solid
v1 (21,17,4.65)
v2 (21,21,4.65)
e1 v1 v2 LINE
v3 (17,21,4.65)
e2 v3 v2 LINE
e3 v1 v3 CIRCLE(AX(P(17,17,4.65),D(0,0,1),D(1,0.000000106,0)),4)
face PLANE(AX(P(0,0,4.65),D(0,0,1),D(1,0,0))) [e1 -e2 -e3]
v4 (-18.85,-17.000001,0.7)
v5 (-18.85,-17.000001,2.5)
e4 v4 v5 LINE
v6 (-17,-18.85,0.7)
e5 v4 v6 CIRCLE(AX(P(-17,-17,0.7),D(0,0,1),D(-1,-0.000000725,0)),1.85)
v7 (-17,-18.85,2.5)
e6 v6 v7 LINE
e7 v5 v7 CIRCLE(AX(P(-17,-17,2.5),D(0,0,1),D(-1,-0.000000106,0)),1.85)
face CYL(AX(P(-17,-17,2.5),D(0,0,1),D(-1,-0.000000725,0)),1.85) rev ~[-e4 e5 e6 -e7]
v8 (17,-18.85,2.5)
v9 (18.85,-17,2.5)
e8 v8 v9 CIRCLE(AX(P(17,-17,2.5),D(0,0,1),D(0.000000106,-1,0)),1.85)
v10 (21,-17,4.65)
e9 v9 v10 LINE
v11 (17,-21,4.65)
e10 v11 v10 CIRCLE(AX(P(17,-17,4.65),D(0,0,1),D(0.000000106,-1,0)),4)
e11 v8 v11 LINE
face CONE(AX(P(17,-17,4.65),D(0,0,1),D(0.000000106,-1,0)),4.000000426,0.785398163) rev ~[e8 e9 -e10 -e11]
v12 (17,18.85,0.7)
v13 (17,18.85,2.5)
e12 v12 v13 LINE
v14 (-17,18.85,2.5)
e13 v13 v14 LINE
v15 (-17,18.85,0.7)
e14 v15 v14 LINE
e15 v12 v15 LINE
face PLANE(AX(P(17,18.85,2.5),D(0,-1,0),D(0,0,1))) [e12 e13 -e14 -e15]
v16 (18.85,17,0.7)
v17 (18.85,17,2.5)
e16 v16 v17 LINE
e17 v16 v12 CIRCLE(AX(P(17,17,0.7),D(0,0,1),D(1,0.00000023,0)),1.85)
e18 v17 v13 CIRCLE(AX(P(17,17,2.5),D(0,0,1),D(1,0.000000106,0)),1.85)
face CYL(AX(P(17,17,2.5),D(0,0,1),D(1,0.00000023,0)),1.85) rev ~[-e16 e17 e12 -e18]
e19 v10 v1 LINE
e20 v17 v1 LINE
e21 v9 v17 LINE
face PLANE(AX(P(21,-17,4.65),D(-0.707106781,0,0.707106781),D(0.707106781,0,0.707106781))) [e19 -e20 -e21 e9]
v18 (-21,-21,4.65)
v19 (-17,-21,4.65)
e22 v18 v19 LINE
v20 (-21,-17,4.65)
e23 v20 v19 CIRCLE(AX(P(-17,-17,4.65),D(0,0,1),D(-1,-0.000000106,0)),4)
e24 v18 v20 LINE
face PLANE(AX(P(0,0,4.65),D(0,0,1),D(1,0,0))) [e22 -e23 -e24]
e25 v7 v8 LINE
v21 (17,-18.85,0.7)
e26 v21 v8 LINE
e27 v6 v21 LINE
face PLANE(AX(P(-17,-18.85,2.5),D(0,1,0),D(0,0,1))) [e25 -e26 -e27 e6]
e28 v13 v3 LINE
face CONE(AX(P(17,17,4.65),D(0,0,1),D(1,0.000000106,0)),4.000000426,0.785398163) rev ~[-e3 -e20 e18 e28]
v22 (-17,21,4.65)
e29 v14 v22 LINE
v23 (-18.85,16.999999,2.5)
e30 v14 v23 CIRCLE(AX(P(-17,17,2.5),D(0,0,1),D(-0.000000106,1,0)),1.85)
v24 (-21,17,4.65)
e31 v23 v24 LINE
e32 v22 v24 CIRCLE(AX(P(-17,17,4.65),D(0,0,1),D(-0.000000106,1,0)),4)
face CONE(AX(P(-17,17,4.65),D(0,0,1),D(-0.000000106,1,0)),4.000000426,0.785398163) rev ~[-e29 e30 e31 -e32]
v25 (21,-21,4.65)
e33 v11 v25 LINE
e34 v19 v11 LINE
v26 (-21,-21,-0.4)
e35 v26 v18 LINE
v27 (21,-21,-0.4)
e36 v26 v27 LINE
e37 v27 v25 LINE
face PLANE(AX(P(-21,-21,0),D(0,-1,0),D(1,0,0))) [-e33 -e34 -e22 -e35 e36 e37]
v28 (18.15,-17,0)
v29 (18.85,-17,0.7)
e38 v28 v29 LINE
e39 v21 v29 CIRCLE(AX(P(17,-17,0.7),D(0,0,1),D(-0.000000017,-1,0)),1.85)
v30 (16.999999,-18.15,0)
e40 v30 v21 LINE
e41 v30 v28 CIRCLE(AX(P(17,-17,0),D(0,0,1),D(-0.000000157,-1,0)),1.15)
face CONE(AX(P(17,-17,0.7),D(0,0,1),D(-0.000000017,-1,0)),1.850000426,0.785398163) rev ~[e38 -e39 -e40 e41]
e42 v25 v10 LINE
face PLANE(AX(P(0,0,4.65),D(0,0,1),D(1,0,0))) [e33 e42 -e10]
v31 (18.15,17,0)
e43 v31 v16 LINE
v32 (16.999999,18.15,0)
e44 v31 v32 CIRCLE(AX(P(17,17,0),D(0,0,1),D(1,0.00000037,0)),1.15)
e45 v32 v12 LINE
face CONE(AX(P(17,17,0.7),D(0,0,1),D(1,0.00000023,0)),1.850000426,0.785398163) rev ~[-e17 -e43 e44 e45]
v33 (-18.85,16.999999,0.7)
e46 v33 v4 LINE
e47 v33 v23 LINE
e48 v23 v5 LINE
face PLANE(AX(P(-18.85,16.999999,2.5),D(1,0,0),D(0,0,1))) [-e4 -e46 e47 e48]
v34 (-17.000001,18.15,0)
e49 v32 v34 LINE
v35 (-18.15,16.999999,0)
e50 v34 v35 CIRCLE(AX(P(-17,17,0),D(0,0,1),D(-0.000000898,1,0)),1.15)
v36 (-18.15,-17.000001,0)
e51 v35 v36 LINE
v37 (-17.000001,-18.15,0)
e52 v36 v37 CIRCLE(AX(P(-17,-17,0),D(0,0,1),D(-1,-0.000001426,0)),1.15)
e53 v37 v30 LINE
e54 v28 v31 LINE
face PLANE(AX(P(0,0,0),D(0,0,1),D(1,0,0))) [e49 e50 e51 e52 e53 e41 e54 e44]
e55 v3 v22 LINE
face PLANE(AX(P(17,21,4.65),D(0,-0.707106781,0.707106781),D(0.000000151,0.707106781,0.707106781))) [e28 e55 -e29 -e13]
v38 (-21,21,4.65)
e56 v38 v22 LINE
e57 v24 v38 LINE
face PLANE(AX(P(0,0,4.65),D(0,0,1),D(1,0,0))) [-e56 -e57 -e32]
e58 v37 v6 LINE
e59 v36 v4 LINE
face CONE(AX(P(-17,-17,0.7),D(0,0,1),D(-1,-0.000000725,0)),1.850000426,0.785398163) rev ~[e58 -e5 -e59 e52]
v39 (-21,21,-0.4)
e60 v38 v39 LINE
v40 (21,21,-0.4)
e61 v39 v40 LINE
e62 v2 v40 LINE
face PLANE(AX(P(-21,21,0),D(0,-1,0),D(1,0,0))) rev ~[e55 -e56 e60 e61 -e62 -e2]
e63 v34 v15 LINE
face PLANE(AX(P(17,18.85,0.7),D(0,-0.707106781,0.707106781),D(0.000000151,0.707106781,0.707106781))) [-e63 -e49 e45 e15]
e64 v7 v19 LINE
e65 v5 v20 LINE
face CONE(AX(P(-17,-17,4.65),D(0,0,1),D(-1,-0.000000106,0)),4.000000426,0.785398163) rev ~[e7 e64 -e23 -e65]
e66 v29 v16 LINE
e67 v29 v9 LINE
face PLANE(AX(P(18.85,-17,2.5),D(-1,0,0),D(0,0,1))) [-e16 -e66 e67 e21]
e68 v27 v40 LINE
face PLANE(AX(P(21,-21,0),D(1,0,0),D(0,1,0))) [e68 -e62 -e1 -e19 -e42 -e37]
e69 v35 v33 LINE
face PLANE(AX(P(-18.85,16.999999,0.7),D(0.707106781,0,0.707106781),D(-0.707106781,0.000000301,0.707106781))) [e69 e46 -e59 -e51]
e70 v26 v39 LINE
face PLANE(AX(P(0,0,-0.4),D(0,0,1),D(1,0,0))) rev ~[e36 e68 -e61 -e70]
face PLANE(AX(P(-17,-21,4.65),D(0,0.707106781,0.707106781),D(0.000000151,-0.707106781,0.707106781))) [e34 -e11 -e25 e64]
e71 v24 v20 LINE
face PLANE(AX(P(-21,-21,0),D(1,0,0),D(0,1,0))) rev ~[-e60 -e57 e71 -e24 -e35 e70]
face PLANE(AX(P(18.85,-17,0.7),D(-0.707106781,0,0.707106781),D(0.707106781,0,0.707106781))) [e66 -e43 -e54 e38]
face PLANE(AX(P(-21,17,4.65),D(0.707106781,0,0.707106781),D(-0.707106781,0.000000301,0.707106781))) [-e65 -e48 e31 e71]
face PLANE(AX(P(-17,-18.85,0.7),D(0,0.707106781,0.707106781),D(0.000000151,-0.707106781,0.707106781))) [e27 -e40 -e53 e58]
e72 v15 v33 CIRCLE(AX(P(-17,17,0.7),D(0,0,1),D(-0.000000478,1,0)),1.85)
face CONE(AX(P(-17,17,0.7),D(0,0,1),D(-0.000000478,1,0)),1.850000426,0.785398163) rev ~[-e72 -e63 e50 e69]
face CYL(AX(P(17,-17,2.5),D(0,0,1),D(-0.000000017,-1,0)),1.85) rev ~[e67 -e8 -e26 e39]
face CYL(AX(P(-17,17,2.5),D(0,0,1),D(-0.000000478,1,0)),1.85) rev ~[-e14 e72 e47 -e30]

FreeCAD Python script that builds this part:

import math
import FreeCAD as App
import Part
import Sketcher
Q = App.Units.Quantity

doc = App.newDocument("Part")
body = doc.addObject("PartDesign::Body", "Body")

# Sketch on XY plane
sketch1 = doc.addObject("Sketcher::SketchObject", "Sketch")
body.addObject(sketch1)
sketch1.AttachmentSupport = (doc.XY_Plane, [""])
sketch1.MapMode = "FlatFace"
sketch1.addGeometry([
    Part.LineSegment(App.Vector(-21, 21, 0), App.Vector(-21, -21, 0)),
    Part.LineSegment(App.Vector(-21, -21, 0), App.Vector(21, -21, 0)),
    Part.LineSegment(App.Vector(21, -21, 0), App.Vector(21, 21, 0)),
    Part.LineSegment(App.Vector(21, 21, 0), App.Vector(-21, 21, 0)),
], False)
sketch1.addConstraint([
    Sketcher.Constraint("Coincident", 0, 2, 1, 1),
    Sketcher.Constraint("Coincident", 1, 2, 2, 1),
    Sketcher.Constraint("Coincident", 2, 2, 3, 1),
    Sketcher.Constraint("Coincident", 3, 2, 0, 1),
    Sketcher.Constraint("Vertical", 0),
    Sketcher.Constraint("Horizontal", 1),
    Sketcher.Constraint("Vertical", 2),
    Sketcher.Constraint("Horizontal", 3),
    Sketcher.Constraint("Symmetric", 0, 2, 2, 2, -1, 1),
    Sketcher.Constraint("Equal", 3, 0),
    Sketcher.Constraint("DistanceX", 1, 1, 1, 2, Q("42 mm")),
])
pad1 = doc.addObject("PartDesign::Pad", "Pad")
body.addObject(pad1)
pad1.Profile = sketch1
pad1.Type = "TwoLengths"
pad1.Length = 4.65
pad1.Length2 = 0.4

# Sketch on XZ plane
sketch2 = doc.addObject("Sketcher::SketchObject", "Sketch001")
body.addObject(sketch2)
sketch2.AttachmentSupport = (doc.XZ_Plane, [""])
sketch2.MapMode = "FlatFace"
sketch2.addGeometry([
    Part.LineSegment(App.Vector(18.9, 2.5, 0), App.Vector(21, 4.7, 0)),  # 0
    Part.LineSegment(App.Vector(21, 4.7, 0), App.Vector(18.1, 4.7, 0)),  # 1
    Part.LineSegment(App.Vector(18.1, 4.7, 0), App.Vector(18.1, 0, 0)),  # 2
    Part.LineSegment(App.Vector(18.1, 0, 0), App.Vector(18.9, 0.7, 0)),  # 3
    Part.LineSegment(App.Vector(18.9, 0.7, 0), App.Vector(18.9, 2.5, 0)),  # 4
], False)
sketch2.addConstraint([
    Sketcher.Constraint("Coincident", 0, 2, 1, 1),
    Sketcher.Constraint("Coincident", 1, 2, 2, 1),
    Sketcher.Constraint("Coincident", 2, 2, 3, 1),
    Sketcher.Constraint("Coincident", 3, 2, 4, 1),
    Sketcher.Constraint("Coincident", 4, 2, 0, 1),
    Sketcher.Constraint("Horizontal", 1),
    Sketcher.Constraint("Vertical", 2),
    Sketcher.Constraint("Vertical", 4),
    Sketcher.Constraint("PointOnObject", 2, 2, -1),
    Sketcher.Constraint("Parallel", 0, 3),
    Sketcher.Constraint("Angle", 0, Q("45 deg")),
    Sketcher.Constraint("DistanceY", 4, 1, 4, 2, Q("1.8 mm")),
    Sketcher.Constraint("DistanceX", -1, 1, 0, 2, Q("21 mm")),
    Sketcher.Constraint("DistanceX", 1, 2, 1, 1, Q("2.85 mm")),
    Sketcher.Constraint("DistanceY", -1, 1, 3, 2, Q("0.7 mm")),
])

# Sketch on XY plane
sketch3 = doc.addObject("Sketcher::SketchObject", "Sketch002")
body.addObject(sketch3)
sketch3.AttachmentSupport = (doc.XY_Plane, [""])
sketch3.MapMode = "FlatFace"
sketch3.addGeometry([
    Part.LineSegment(App.Vector(-17, -21, 0), App.Vector(17, -21, 0)),  # 0
    Part.ArcOfCircle(Part.Circle(App.Vector(17, -17, 0), App.Vector(0, 0, 1), 4), math.radians(-90), math.radians(0)),  # 1
    Part.LineSegment(App.Vector(21, -17, 0), App.Vector(21, 17, 0)),  # 2
    Part.ArcOfCircle(Part.Circle(App.Vector(17, 17, 0), App.Vector(0, 0, 1), 4), math.radians(0), math.radians(90)),  # 3
    Part.LineSegment(App.Vector(17, 21, 0), App.Vector(-17, 21, 0)),  # 4
    Part.ArcOfCircle(Part.Circle(App.Vector(-17, 17, 0), App.Vector(0, 0, 1), 4), math.radians(90), math.radians(180)),  # 5
    Part.LineSegment(App.Vector(-21, 17, 0), App.Vector(-21, -17, 0)),  # 6
    Part.ArcOfCircle(Part.Circle(App.Vector(-17, -17, 0), App.Vector(0, 0, 1), 4), math.radians(-180), math.radians(-90)),  # 7
], False)
sketch3.addConstraint([
    Sketcher.Constraint("Tangent", 0, 2, 1, 1),
    Sketcher.Constraint("Tangent", 1, 2, 2, 1),
    Sketcher.Constraint("Tangent", 2, 2, 3, 1),
    Sketcher.Constraint("Tangent", 3, 2, 4, 1),
    Sketcher.Constraint("Tangent", 4, 2, 5, 1),
    Sketcher.Constraint("Tangent", 5, 2, 6, 1),
    Sketcher.Constraint("Tangent", 6, 2, 7, 1),
    Sketcher.Constraint("Tangent", 7, 2, 0, 1),
    Sketcher.Constraint("Horizontal", 0),
    Sketcher.Constraint("Vertical", 2),
    Sketcher.Constraint("Horizontal", 4),
    Sketcher.Constraint("Vertical", 6),
    Sketcher.Constraint("Equal", 1, 3),
    Sketcher.Constraint("Equal", 3, 5),
    Sketcher.Constraint("Equal", 5, 7),
    Sketcher.Constraint("Symmetric", 1, 3, 5, 3, -1, 1),
    Sketcher.Constraint("Equal", 4, 2),
    Sketcher.Constraint("Radius", 1, Q("4 mm")),
    Sketcher.Constraint("DistanceX", 0, 1, 0, 2, Q("34 mm")),
])
doc.recompute()

subtractivepipe = doc.addObject("PartDesign::SubtractivePipe", "SubtractivePipe")
body.addObject(subtractivepipe)
subtractivepipe.Profile = sketch2
subtractivepipe.Spine = (sketch3, ["Edge1", "Edge2", "Edge3", "Edge4", "Edge5", "Edge6", "Edge7", "Edge8"])

# Sketch on XY plane
sketch4 = doc.addObject("Sketcher::SketchObject", "Sketch003")
body.addObject(sketch4)
sketch4.AttachmentSupport = (doc.XY_Plane, [""])
sketch4.MapMode = "FlatFace"
sketch4.addGeometry([
    Part.LineSegment(App.Vector(18.1, -17, 0), App.Vector(18.1, 17, 0)),  # 0
    Part.ArcOfCircle(Part.Circle(App.Vector(17, 17, 0), App.Vector(0, 0, 1), 1.1), math.radians(0), math.radians(90)),  # 1
    Part.LineSegment(App.Vector(17, 18.1, 0), App.Vector(-17, 18.1, 0)),  # 2
    Part.ArcOfCircle(Part.Circle(App.Vector(-17, 17, 0), App.Vector(0, 0, 1), 1.1), math.radians(90), math.radians(180)),  # 3
    Part.LineSegment(App.Vector(-18.1, 17, 0), App.Vector(-18.1, -17, 0)),  # 4
    Part.ArcOfCircle(Part.Circle(App.Vector(-17, -17, 0), App.Vector(0, 0, 1), 1.1), math.radians(180), math.radians(270)),  # 5
    Part.LineSegment(App.Vector(-17, -18.1, 0), App.Vector(17, -18.1, 0)),  # 6
    Part.ArcOfCircle(Part.Circle(App.Vector(17, -17, 0), App.Vector(0, 0, 1), 1.1), math.radians(-90), math.radians(0)),  # 7
], False)
sketch4.addConstraint([
    Sketcher.Constraint("Tangent", 0, 2, 1, 1),
    Sketcher.Constraint("Tangent", 1, 2, 2, 1),
    Sketcher.Constraint("Tangent", 2, 2, 3, 1),
    Sketcher.Constraint("Tangent", 3, 2, 4, 1),
    Sketcher.Constraint("Tangent", 4, 2, 5, 1),
    Sketcher.Constraint("Tangent", 5, 2, 6, 1),
    Sketcher.Constraint("Tangent", 6, 2, 7, 1),
    Sketcher.Constraint("Tangent", 7, 2, 0, 1),
    Sketcher.Constraint("Vertical", 0),
    Sketcher.Constraint("Horizontal", 2),
    Sketcher.Constraint("Vertical", 4),
    Sketcher.Constraint("Horizontal", 6),
    Sketcher.Constraint("Equal", 1, 3),
    Sketcher.Constraint("Equal", 3, 5),
    Sketcher.Constraint("Equal", 5, 7),
    Sketcher.Constraint("Symmetric", 1, 3, 5, 3, -1, 1),
    Sketcher.Constraint("Equal", 6, 0),
    Sketcher.Constraint("DistanceX", 2, 2, 2, 1, Q("34 mm")),
    Sketcher.Constraint("Radius", 1, Q("1.149999 mm")),
])
pocket1 = doc.addObject("PartDesign::Pocket", "Pocket")
body.addObject(pocket1)
pocket1.Profile = sketch4
pocket1.Type = "ThroughAll"
pocket1.Reversed = True

doc.recompute()
